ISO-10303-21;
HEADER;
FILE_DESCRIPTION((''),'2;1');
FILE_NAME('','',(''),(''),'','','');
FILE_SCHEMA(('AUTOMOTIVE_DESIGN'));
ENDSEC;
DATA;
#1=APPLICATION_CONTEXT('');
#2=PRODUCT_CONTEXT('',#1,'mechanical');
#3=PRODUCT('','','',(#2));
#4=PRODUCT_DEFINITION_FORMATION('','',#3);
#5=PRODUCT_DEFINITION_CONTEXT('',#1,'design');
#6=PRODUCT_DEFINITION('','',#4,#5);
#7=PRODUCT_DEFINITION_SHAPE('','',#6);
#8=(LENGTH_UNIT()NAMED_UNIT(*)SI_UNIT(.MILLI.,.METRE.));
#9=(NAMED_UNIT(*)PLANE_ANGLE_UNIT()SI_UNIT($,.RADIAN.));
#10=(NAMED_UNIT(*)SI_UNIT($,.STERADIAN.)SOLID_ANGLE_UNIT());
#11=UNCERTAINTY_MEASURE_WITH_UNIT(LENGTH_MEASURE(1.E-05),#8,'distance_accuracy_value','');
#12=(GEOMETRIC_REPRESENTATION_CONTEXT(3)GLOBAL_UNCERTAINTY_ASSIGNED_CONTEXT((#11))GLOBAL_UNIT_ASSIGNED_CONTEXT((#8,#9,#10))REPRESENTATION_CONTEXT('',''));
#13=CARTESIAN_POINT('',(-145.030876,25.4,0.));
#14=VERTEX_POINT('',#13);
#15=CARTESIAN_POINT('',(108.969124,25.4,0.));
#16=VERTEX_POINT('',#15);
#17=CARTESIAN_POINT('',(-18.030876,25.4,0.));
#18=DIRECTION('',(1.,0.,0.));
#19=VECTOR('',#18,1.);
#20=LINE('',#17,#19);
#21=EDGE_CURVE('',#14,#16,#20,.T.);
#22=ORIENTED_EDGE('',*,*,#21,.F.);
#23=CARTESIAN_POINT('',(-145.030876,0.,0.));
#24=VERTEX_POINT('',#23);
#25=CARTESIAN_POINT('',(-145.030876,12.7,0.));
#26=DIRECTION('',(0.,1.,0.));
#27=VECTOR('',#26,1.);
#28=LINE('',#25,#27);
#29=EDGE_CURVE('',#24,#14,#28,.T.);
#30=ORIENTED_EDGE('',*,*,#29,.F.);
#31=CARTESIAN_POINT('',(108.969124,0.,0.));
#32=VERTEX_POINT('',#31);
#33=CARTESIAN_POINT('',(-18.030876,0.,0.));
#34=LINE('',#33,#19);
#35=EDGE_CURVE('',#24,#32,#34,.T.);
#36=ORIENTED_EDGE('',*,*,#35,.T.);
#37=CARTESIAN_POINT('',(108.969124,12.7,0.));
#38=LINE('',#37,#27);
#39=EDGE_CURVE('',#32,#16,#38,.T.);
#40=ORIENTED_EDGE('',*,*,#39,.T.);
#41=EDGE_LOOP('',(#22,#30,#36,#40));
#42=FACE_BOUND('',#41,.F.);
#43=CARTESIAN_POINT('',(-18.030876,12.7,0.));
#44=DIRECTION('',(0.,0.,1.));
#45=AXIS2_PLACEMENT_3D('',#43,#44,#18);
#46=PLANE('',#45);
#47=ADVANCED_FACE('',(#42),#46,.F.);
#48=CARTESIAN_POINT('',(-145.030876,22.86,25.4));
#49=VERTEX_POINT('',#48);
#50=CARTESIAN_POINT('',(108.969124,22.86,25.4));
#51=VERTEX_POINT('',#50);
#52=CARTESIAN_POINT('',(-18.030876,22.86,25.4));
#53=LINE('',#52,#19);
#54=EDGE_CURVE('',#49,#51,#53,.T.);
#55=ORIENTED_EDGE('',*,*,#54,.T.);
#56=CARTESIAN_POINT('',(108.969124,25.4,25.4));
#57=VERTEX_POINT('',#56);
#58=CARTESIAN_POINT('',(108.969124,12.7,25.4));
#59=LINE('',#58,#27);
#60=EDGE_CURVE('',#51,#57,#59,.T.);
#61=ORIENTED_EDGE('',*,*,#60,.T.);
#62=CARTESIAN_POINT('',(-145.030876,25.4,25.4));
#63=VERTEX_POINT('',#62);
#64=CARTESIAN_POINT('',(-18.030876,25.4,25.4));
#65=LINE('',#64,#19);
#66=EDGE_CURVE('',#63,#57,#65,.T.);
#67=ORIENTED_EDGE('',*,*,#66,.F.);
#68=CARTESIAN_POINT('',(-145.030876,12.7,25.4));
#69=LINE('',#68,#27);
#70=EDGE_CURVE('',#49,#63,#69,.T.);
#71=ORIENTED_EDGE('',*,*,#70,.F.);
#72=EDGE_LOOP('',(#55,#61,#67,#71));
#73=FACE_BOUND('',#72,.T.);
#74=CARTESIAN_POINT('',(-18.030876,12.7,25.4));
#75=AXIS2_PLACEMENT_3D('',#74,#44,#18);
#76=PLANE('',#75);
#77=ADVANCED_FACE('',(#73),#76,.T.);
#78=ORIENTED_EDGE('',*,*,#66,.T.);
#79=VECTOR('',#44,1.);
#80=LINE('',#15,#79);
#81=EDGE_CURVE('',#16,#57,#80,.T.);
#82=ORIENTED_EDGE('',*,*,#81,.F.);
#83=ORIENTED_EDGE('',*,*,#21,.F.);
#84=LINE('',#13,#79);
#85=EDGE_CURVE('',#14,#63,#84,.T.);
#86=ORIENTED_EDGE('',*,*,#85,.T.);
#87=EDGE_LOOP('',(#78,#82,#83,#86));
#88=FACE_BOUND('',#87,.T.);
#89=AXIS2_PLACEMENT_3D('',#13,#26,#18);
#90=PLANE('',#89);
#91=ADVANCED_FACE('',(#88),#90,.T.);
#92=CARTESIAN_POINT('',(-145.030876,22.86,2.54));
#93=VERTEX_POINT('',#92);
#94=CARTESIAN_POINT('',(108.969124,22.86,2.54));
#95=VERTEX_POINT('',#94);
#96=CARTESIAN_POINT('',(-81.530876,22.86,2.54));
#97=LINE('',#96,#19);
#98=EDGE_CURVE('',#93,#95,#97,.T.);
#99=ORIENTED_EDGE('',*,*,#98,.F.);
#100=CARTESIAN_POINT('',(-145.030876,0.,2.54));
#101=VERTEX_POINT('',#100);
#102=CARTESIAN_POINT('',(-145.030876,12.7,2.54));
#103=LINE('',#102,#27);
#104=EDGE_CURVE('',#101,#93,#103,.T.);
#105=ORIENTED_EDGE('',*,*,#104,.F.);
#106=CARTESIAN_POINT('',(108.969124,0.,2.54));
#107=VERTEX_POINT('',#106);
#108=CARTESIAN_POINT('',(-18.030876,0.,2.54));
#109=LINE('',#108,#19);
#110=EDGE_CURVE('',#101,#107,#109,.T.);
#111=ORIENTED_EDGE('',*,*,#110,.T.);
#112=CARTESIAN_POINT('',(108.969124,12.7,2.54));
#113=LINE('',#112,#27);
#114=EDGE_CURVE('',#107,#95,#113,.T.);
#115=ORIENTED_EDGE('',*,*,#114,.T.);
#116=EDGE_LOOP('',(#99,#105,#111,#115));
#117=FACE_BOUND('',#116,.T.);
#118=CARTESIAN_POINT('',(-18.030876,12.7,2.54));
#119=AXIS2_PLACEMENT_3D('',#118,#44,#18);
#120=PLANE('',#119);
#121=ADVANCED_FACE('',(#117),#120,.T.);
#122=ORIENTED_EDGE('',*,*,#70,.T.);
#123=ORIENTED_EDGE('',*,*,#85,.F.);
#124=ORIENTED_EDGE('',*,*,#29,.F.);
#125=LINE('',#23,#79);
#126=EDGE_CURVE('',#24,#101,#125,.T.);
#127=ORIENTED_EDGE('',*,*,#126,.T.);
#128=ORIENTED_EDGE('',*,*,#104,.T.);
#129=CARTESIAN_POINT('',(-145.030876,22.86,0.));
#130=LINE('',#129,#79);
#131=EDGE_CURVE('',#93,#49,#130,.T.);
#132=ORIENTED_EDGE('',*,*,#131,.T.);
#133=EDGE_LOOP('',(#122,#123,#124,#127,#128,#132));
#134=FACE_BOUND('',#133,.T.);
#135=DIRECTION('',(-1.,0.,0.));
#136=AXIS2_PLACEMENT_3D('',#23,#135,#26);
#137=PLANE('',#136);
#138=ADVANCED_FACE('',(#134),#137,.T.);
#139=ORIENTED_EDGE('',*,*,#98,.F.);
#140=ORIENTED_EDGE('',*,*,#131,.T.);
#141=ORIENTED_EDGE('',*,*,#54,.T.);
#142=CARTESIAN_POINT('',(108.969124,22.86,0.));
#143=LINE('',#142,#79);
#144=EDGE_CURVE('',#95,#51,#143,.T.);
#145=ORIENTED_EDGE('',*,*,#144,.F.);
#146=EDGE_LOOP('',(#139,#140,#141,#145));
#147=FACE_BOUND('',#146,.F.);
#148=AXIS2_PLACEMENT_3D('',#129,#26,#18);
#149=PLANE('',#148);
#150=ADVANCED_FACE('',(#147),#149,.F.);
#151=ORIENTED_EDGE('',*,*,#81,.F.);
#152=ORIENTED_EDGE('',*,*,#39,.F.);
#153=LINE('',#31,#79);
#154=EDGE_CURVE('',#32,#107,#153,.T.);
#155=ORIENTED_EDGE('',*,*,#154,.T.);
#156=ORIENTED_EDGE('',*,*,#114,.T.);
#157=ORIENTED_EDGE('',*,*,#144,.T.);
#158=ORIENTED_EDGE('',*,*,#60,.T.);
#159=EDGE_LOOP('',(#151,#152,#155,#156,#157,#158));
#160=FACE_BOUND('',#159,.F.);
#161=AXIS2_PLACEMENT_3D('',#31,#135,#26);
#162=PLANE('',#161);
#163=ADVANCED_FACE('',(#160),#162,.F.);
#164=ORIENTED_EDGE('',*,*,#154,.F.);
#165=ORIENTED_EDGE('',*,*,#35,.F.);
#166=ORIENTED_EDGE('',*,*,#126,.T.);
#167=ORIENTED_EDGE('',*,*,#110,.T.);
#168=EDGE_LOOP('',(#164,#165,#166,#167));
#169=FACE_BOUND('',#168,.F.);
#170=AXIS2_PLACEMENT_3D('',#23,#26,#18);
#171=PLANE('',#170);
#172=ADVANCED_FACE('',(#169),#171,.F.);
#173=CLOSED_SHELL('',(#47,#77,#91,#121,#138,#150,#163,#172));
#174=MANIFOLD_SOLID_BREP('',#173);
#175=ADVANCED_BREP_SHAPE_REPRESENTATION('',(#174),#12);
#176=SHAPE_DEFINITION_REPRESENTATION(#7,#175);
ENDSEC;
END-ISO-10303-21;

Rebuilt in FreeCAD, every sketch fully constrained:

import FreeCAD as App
import Part
import Sketcher
from FreeCAD import Vector
Q = App.Units.Quantity


def faces_at(feature, points):
    """Names of the faces that lie closest to the given points."""
    faces = feature.Shape.Faces
    near = lambda p: min(range(len(faces)), key=lambda i: faces[i].distToShape(Part.Vertex(*p))[0])
    return sorted({f"Face{near(p) + 1}" for p in points})

doc = App.newDocument("Part")
body = doc.addObject("PartDesign::Body", "Body")

# Sketch on XY plane
sketch1 = doc.addObject("Sketcher::SketchObject", "Sketch")
body.addObject(sketch1)
sketch1.AttachmentSupport = (doc.XY_Plane, [""])
sketch1.MapMode = "FlatFace"
sketch1.addGeometry(Part.LineSegment(Vector(-145.030876, 25.4, 0), Vector(-145.030876, 0, 0)), False)
sketch1.addGeometry(Part.LineSegment(Vector(-145.030876, 0, 0), Vector(108.969124, 0, 0)), False)
sketch1.addGeometry(Part.LineSegment(Vector(108.969124, 0, 0), Vector(108.969124, 25.4, 0)), False)
sketch1.addGeometry(Part.LineSegment(Vector(108.969124, 25.4, 0), Vector(-145.030876, 25.4, 0)), False)
sketch1.addConstraint(Sketcher.Constraint("Coincident", 0, 2, 1, 1))
sketch1.addConstraint(Sketcher.Constraint("Coincident", 1, 2, 2, 1))
sketch1.addConstraint(Sketcher.Constraint("Coincident", 2, 2, 3, 1))
sketch1.addConstraint(Sketcher.Constraint("Coincident", 3, 2, 0, 1))
sketch1.addConstraint(Sketcher.Constraint("Vertical", 0))
sketch1.addConstraint(Sketcher.Constraint("Horizontal", 1))
sketch1.addConstraint(Sketcher.Constraint("Vertical", 2))
sketch1.addConstraint(Sketcher.Constraint("Horizontal", 3))
sketch1.addConstraint(Sketcher.Constraint("PointOnObject", 0, 2, -1))
sketch1.addConstraint(Sketcher.Constraint("DistanceX", 1, 1, 1, 2, Q("10 in")))
sketch1.addConstraint(Sketcher.Constraint("DistanceY", 0, 2, 0, 1, Q("1 in")))
sketch1.addConstraint(Sketcher.Constraint("DistanceX", 0, 2, -1, 1, Q("145.030876 mm")))
pad1 = doc.addObject("PartDesign::Pad", "Pad")
body.addObject(pad1)
pad1.Profile = sketch1
pad1.Length = Q("1 in")
doc.recompute()

thickness = doc.addObject("PartDesign::Thickness", "Thickness")
body.addObject(thickness)
thickness.Base = (pad1, faces_at(pad1, [
    (-18.031, 12.7, 25.4),
    (-18.031, 0, 12.7),
    (108.969, 12.7, 12.7),
    (-145.031, 12.7, 12.7),
]))
thickness.Value = Q("0.1 in")
thickness.Reversed = True
thickness.Join = "Arc"

doc.recompute()
